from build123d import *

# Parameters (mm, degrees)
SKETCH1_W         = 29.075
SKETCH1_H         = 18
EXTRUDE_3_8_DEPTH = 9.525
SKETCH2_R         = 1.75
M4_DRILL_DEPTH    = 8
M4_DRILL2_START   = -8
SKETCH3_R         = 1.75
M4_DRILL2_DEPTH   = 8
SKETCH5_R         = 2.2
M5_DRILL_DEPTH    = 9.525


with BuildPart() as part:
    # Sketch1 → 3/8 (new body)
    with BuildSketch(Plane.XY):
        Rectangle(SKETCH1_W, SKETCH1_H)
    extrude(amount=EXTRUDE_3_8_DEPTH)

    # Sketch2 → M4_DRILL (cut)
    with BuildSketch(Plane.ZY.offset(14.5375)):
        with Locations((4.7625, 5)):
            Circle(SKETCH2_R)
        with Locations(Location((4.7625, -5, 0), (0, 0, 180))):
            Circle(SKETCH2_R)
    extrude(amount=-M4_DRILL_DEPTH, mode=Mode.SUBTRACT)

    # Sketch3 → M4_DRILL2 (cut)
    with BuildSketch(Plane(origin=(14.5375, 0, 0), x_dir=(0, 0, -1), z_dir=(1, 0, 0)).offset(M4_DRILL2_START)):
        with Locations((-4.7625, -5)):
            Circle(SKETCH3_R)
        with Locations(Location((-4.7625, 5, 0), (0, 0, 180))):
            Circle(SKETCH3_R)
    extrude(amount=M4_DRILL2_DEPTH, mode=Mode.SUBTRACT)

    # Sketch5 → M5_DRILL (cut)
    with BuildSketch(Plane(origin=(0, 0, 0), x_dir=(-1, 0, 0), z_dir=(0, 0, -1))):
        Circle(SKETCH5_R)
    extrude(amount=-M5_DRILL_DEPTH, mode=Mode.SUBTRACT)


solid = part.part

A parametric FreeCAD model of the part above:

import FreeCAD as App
import Part
import Sketcher

doc = App.newDocument("Part")
body = doc.addObject("PartDesign::Body", "Body")

# Sketch on XY plane
sketch1 = doc.addObject("Sketcher::SketchObject", "Sketch")
body.addObject(sketch1)
sketch1.AttachmentSupport = (doc.XY_Plane, [""])
sketch1.MapMode = "FlatFace"
sketch1.addGeometry(Part.LineSegment(App.Vector(-14.5375, 9, 0), App.Vector(-14.5375, -9, 0)), False)
sketch1.addGeometry(Part.LineSegment(App.Vector(-14.5375, -9, 0), App.Vector(14.5375, -9, 0)), False)
sketch1.addGeometry(Part.LineSegment(App.Vector(14.5375, -9, 0), App.Vector(14.5375, 9, 0)), False)
sketch1.addGeometry(Part.LineSegment(App.Vector(14.5375, 9, 0), App.Vector(-14.5375, 9, 0)), False)
sketch1.addConstraint(Sketcher.Constraint("Coincident", 0, 2, 1, 1))
sketch1.addConstraint(Sketcher.Constraint("Coincident", 1, 2, 2, 1))
sketch1.addConstraint(Sketcher.Constraint("Coincident", 2, 2, 3, 1))
sketch1.addConstraint(Sketcher.Constraint("Coincident", 3, 2, 0, 1))
sketch1.addConstraint(Sketcher.Constraint("Vertical", 0))
sketch1.addConstraint(Sketcher.Constraint("Horizontal", 1))
sketch1.addConstraint(Sketcher.Constraint("Vertical", 2))
sketch1.addConstraint(Sketcher.Constraint("Horizontal", 3))
sketch1.addConstraint(Sketcher.Constraint("Symmetric", 0, 2, 2, 2, -1, 1))
sketch1.addConstraint(Sketcher.Constraint("DistanceY", 0, 2, 0, 1, 18.0))
sketch1.addConstraint(Sketcher.Constraint("DistanceX", 1, 1, 1, 2, 29.075))
pad1 = doc.addObject("PartDesign::Pad", "Pad")
body.addObject(pad1)
pad1.Profile = sketch1
pad1.Length = 9.525

# Sketch on YZ plane
sketch2 = doc.addObject("Sketcher::SketchObject", "Sketch001")
body.addObject(sketch2)
sketch2.AttachmentSupport = (doc.YZ_Plane, [""])
sketch2.MapMode = "FlatFace"
sketch2.AttachmentOffset = App.Placement(App.Vector(0, 0, -14.5375), App.Rotation())
sketch2.addGeometry(Part.Circle(App.Vector(5, 4.7625, 0), App.Vector(0, 0, 1), 1.75), False)
sketch2.addGeometry(Part.Circle(App.Vector(-5, 4.7625, 0), App.Vector(0, 0, 1), 1.75), False)
sketch2.addConstraint(Sketcher.Constraint("Equal", 0, 1))
sketch2.addConstraint(Sketcher.Constraint("Symmetric", 0, 3, 1, 3, -2))
sketch2.addConstraint(Sketcher.Constraint("Diameter", 0, 3.5))
sketch2.addConstraint(Sketcher.Constraint("DistanceX", -1, 1, 0, 3, 5.0))
sketch2.addConstraint(Sketcher.Constraint("DistanceY", -1, 1, 0, 3, 4.7625))
pocket1 = doc.addObject("PartDesign::Pocket", "Pocket")
body.addObject(pocket1)
pocket1.Profile = sketch2
pocket1.Length = 8
pocket1.Reversed = True

# Sketch on YZ plane
sketch3 = doc.addObject("Sketcher::SketchObject", "Sketch002")
body.addObject(sketch3)
sketch3.AttachmentSupport = (doc.YZ_Plane, [""])
sketch3.MapMode = "FlatFace"
sketch3.AttachmentOffset = App.Placement(App.Vector(0, 0, 6.5375), App.Rotation())
sketch3.addGeometry(Part.Circle(App.Vector(-5, 4.7625, 0), App.Vector(0, 0, 1), 1.75), False)
sketch3.addGeometry(Part.Circle(App.Vector(5, 4.7625, 0), App.Vector(0, 0, 1), 1.75), False)
sketch3.addConstraint(Sketcher.Constraint("Equal", 0, 1))
sketch3.addConstraint(Sketcher.Constraint("Symmetric", 0, 3, 1, 3, -2))
sketch3.addConstraint(Sketcher.Constraint("Diameter", 0, 3.5))
sketch3.addConstraint(Sketcher.Constraint("DistanceX", 0, 3, -1, 1, 5.0))
sketch3.addConstraint(Sketcher.Constraint("DistanceY", -1, 1, 0, 3, 4.7625))
pocket2 = doc.addObject("PartDesign::Pocket", "Pocket001")
body.addObject(pocket2)
pocket2.Profile = sketch3
pocket2.Length = 8
pocket2.Reversed = True

# Sketch on XY plane
sketch4 = doc.addObject("Sketcher::SketchObject", "Sketch003")
body.addObject(sketch4)
sketch4.AttachmentSupport = (doc.XY_Plane, [""])
sketch4.MapMode = "FlatFace"
sketch4.addGeometry(Part.Circle(App.Vector(0, 0, 0), App.Vector(0, 0, 1), 2.2), False)
sketch4.addConstraint(Sketcher.Constraint("Coincident", 0, 3, -1, 1))
sketch4.addConstraint(Sketcher.Constraint("Diameter", 0, 4.4))
pocket3 = doc.addObject("PartDesign::Pocket", "Pocket002")
body.addObject(pocket3)
pocket3.Profile = sketch4
pocket3.Length = 9.525
pocket3.Reversed = True

doc.recompute()
